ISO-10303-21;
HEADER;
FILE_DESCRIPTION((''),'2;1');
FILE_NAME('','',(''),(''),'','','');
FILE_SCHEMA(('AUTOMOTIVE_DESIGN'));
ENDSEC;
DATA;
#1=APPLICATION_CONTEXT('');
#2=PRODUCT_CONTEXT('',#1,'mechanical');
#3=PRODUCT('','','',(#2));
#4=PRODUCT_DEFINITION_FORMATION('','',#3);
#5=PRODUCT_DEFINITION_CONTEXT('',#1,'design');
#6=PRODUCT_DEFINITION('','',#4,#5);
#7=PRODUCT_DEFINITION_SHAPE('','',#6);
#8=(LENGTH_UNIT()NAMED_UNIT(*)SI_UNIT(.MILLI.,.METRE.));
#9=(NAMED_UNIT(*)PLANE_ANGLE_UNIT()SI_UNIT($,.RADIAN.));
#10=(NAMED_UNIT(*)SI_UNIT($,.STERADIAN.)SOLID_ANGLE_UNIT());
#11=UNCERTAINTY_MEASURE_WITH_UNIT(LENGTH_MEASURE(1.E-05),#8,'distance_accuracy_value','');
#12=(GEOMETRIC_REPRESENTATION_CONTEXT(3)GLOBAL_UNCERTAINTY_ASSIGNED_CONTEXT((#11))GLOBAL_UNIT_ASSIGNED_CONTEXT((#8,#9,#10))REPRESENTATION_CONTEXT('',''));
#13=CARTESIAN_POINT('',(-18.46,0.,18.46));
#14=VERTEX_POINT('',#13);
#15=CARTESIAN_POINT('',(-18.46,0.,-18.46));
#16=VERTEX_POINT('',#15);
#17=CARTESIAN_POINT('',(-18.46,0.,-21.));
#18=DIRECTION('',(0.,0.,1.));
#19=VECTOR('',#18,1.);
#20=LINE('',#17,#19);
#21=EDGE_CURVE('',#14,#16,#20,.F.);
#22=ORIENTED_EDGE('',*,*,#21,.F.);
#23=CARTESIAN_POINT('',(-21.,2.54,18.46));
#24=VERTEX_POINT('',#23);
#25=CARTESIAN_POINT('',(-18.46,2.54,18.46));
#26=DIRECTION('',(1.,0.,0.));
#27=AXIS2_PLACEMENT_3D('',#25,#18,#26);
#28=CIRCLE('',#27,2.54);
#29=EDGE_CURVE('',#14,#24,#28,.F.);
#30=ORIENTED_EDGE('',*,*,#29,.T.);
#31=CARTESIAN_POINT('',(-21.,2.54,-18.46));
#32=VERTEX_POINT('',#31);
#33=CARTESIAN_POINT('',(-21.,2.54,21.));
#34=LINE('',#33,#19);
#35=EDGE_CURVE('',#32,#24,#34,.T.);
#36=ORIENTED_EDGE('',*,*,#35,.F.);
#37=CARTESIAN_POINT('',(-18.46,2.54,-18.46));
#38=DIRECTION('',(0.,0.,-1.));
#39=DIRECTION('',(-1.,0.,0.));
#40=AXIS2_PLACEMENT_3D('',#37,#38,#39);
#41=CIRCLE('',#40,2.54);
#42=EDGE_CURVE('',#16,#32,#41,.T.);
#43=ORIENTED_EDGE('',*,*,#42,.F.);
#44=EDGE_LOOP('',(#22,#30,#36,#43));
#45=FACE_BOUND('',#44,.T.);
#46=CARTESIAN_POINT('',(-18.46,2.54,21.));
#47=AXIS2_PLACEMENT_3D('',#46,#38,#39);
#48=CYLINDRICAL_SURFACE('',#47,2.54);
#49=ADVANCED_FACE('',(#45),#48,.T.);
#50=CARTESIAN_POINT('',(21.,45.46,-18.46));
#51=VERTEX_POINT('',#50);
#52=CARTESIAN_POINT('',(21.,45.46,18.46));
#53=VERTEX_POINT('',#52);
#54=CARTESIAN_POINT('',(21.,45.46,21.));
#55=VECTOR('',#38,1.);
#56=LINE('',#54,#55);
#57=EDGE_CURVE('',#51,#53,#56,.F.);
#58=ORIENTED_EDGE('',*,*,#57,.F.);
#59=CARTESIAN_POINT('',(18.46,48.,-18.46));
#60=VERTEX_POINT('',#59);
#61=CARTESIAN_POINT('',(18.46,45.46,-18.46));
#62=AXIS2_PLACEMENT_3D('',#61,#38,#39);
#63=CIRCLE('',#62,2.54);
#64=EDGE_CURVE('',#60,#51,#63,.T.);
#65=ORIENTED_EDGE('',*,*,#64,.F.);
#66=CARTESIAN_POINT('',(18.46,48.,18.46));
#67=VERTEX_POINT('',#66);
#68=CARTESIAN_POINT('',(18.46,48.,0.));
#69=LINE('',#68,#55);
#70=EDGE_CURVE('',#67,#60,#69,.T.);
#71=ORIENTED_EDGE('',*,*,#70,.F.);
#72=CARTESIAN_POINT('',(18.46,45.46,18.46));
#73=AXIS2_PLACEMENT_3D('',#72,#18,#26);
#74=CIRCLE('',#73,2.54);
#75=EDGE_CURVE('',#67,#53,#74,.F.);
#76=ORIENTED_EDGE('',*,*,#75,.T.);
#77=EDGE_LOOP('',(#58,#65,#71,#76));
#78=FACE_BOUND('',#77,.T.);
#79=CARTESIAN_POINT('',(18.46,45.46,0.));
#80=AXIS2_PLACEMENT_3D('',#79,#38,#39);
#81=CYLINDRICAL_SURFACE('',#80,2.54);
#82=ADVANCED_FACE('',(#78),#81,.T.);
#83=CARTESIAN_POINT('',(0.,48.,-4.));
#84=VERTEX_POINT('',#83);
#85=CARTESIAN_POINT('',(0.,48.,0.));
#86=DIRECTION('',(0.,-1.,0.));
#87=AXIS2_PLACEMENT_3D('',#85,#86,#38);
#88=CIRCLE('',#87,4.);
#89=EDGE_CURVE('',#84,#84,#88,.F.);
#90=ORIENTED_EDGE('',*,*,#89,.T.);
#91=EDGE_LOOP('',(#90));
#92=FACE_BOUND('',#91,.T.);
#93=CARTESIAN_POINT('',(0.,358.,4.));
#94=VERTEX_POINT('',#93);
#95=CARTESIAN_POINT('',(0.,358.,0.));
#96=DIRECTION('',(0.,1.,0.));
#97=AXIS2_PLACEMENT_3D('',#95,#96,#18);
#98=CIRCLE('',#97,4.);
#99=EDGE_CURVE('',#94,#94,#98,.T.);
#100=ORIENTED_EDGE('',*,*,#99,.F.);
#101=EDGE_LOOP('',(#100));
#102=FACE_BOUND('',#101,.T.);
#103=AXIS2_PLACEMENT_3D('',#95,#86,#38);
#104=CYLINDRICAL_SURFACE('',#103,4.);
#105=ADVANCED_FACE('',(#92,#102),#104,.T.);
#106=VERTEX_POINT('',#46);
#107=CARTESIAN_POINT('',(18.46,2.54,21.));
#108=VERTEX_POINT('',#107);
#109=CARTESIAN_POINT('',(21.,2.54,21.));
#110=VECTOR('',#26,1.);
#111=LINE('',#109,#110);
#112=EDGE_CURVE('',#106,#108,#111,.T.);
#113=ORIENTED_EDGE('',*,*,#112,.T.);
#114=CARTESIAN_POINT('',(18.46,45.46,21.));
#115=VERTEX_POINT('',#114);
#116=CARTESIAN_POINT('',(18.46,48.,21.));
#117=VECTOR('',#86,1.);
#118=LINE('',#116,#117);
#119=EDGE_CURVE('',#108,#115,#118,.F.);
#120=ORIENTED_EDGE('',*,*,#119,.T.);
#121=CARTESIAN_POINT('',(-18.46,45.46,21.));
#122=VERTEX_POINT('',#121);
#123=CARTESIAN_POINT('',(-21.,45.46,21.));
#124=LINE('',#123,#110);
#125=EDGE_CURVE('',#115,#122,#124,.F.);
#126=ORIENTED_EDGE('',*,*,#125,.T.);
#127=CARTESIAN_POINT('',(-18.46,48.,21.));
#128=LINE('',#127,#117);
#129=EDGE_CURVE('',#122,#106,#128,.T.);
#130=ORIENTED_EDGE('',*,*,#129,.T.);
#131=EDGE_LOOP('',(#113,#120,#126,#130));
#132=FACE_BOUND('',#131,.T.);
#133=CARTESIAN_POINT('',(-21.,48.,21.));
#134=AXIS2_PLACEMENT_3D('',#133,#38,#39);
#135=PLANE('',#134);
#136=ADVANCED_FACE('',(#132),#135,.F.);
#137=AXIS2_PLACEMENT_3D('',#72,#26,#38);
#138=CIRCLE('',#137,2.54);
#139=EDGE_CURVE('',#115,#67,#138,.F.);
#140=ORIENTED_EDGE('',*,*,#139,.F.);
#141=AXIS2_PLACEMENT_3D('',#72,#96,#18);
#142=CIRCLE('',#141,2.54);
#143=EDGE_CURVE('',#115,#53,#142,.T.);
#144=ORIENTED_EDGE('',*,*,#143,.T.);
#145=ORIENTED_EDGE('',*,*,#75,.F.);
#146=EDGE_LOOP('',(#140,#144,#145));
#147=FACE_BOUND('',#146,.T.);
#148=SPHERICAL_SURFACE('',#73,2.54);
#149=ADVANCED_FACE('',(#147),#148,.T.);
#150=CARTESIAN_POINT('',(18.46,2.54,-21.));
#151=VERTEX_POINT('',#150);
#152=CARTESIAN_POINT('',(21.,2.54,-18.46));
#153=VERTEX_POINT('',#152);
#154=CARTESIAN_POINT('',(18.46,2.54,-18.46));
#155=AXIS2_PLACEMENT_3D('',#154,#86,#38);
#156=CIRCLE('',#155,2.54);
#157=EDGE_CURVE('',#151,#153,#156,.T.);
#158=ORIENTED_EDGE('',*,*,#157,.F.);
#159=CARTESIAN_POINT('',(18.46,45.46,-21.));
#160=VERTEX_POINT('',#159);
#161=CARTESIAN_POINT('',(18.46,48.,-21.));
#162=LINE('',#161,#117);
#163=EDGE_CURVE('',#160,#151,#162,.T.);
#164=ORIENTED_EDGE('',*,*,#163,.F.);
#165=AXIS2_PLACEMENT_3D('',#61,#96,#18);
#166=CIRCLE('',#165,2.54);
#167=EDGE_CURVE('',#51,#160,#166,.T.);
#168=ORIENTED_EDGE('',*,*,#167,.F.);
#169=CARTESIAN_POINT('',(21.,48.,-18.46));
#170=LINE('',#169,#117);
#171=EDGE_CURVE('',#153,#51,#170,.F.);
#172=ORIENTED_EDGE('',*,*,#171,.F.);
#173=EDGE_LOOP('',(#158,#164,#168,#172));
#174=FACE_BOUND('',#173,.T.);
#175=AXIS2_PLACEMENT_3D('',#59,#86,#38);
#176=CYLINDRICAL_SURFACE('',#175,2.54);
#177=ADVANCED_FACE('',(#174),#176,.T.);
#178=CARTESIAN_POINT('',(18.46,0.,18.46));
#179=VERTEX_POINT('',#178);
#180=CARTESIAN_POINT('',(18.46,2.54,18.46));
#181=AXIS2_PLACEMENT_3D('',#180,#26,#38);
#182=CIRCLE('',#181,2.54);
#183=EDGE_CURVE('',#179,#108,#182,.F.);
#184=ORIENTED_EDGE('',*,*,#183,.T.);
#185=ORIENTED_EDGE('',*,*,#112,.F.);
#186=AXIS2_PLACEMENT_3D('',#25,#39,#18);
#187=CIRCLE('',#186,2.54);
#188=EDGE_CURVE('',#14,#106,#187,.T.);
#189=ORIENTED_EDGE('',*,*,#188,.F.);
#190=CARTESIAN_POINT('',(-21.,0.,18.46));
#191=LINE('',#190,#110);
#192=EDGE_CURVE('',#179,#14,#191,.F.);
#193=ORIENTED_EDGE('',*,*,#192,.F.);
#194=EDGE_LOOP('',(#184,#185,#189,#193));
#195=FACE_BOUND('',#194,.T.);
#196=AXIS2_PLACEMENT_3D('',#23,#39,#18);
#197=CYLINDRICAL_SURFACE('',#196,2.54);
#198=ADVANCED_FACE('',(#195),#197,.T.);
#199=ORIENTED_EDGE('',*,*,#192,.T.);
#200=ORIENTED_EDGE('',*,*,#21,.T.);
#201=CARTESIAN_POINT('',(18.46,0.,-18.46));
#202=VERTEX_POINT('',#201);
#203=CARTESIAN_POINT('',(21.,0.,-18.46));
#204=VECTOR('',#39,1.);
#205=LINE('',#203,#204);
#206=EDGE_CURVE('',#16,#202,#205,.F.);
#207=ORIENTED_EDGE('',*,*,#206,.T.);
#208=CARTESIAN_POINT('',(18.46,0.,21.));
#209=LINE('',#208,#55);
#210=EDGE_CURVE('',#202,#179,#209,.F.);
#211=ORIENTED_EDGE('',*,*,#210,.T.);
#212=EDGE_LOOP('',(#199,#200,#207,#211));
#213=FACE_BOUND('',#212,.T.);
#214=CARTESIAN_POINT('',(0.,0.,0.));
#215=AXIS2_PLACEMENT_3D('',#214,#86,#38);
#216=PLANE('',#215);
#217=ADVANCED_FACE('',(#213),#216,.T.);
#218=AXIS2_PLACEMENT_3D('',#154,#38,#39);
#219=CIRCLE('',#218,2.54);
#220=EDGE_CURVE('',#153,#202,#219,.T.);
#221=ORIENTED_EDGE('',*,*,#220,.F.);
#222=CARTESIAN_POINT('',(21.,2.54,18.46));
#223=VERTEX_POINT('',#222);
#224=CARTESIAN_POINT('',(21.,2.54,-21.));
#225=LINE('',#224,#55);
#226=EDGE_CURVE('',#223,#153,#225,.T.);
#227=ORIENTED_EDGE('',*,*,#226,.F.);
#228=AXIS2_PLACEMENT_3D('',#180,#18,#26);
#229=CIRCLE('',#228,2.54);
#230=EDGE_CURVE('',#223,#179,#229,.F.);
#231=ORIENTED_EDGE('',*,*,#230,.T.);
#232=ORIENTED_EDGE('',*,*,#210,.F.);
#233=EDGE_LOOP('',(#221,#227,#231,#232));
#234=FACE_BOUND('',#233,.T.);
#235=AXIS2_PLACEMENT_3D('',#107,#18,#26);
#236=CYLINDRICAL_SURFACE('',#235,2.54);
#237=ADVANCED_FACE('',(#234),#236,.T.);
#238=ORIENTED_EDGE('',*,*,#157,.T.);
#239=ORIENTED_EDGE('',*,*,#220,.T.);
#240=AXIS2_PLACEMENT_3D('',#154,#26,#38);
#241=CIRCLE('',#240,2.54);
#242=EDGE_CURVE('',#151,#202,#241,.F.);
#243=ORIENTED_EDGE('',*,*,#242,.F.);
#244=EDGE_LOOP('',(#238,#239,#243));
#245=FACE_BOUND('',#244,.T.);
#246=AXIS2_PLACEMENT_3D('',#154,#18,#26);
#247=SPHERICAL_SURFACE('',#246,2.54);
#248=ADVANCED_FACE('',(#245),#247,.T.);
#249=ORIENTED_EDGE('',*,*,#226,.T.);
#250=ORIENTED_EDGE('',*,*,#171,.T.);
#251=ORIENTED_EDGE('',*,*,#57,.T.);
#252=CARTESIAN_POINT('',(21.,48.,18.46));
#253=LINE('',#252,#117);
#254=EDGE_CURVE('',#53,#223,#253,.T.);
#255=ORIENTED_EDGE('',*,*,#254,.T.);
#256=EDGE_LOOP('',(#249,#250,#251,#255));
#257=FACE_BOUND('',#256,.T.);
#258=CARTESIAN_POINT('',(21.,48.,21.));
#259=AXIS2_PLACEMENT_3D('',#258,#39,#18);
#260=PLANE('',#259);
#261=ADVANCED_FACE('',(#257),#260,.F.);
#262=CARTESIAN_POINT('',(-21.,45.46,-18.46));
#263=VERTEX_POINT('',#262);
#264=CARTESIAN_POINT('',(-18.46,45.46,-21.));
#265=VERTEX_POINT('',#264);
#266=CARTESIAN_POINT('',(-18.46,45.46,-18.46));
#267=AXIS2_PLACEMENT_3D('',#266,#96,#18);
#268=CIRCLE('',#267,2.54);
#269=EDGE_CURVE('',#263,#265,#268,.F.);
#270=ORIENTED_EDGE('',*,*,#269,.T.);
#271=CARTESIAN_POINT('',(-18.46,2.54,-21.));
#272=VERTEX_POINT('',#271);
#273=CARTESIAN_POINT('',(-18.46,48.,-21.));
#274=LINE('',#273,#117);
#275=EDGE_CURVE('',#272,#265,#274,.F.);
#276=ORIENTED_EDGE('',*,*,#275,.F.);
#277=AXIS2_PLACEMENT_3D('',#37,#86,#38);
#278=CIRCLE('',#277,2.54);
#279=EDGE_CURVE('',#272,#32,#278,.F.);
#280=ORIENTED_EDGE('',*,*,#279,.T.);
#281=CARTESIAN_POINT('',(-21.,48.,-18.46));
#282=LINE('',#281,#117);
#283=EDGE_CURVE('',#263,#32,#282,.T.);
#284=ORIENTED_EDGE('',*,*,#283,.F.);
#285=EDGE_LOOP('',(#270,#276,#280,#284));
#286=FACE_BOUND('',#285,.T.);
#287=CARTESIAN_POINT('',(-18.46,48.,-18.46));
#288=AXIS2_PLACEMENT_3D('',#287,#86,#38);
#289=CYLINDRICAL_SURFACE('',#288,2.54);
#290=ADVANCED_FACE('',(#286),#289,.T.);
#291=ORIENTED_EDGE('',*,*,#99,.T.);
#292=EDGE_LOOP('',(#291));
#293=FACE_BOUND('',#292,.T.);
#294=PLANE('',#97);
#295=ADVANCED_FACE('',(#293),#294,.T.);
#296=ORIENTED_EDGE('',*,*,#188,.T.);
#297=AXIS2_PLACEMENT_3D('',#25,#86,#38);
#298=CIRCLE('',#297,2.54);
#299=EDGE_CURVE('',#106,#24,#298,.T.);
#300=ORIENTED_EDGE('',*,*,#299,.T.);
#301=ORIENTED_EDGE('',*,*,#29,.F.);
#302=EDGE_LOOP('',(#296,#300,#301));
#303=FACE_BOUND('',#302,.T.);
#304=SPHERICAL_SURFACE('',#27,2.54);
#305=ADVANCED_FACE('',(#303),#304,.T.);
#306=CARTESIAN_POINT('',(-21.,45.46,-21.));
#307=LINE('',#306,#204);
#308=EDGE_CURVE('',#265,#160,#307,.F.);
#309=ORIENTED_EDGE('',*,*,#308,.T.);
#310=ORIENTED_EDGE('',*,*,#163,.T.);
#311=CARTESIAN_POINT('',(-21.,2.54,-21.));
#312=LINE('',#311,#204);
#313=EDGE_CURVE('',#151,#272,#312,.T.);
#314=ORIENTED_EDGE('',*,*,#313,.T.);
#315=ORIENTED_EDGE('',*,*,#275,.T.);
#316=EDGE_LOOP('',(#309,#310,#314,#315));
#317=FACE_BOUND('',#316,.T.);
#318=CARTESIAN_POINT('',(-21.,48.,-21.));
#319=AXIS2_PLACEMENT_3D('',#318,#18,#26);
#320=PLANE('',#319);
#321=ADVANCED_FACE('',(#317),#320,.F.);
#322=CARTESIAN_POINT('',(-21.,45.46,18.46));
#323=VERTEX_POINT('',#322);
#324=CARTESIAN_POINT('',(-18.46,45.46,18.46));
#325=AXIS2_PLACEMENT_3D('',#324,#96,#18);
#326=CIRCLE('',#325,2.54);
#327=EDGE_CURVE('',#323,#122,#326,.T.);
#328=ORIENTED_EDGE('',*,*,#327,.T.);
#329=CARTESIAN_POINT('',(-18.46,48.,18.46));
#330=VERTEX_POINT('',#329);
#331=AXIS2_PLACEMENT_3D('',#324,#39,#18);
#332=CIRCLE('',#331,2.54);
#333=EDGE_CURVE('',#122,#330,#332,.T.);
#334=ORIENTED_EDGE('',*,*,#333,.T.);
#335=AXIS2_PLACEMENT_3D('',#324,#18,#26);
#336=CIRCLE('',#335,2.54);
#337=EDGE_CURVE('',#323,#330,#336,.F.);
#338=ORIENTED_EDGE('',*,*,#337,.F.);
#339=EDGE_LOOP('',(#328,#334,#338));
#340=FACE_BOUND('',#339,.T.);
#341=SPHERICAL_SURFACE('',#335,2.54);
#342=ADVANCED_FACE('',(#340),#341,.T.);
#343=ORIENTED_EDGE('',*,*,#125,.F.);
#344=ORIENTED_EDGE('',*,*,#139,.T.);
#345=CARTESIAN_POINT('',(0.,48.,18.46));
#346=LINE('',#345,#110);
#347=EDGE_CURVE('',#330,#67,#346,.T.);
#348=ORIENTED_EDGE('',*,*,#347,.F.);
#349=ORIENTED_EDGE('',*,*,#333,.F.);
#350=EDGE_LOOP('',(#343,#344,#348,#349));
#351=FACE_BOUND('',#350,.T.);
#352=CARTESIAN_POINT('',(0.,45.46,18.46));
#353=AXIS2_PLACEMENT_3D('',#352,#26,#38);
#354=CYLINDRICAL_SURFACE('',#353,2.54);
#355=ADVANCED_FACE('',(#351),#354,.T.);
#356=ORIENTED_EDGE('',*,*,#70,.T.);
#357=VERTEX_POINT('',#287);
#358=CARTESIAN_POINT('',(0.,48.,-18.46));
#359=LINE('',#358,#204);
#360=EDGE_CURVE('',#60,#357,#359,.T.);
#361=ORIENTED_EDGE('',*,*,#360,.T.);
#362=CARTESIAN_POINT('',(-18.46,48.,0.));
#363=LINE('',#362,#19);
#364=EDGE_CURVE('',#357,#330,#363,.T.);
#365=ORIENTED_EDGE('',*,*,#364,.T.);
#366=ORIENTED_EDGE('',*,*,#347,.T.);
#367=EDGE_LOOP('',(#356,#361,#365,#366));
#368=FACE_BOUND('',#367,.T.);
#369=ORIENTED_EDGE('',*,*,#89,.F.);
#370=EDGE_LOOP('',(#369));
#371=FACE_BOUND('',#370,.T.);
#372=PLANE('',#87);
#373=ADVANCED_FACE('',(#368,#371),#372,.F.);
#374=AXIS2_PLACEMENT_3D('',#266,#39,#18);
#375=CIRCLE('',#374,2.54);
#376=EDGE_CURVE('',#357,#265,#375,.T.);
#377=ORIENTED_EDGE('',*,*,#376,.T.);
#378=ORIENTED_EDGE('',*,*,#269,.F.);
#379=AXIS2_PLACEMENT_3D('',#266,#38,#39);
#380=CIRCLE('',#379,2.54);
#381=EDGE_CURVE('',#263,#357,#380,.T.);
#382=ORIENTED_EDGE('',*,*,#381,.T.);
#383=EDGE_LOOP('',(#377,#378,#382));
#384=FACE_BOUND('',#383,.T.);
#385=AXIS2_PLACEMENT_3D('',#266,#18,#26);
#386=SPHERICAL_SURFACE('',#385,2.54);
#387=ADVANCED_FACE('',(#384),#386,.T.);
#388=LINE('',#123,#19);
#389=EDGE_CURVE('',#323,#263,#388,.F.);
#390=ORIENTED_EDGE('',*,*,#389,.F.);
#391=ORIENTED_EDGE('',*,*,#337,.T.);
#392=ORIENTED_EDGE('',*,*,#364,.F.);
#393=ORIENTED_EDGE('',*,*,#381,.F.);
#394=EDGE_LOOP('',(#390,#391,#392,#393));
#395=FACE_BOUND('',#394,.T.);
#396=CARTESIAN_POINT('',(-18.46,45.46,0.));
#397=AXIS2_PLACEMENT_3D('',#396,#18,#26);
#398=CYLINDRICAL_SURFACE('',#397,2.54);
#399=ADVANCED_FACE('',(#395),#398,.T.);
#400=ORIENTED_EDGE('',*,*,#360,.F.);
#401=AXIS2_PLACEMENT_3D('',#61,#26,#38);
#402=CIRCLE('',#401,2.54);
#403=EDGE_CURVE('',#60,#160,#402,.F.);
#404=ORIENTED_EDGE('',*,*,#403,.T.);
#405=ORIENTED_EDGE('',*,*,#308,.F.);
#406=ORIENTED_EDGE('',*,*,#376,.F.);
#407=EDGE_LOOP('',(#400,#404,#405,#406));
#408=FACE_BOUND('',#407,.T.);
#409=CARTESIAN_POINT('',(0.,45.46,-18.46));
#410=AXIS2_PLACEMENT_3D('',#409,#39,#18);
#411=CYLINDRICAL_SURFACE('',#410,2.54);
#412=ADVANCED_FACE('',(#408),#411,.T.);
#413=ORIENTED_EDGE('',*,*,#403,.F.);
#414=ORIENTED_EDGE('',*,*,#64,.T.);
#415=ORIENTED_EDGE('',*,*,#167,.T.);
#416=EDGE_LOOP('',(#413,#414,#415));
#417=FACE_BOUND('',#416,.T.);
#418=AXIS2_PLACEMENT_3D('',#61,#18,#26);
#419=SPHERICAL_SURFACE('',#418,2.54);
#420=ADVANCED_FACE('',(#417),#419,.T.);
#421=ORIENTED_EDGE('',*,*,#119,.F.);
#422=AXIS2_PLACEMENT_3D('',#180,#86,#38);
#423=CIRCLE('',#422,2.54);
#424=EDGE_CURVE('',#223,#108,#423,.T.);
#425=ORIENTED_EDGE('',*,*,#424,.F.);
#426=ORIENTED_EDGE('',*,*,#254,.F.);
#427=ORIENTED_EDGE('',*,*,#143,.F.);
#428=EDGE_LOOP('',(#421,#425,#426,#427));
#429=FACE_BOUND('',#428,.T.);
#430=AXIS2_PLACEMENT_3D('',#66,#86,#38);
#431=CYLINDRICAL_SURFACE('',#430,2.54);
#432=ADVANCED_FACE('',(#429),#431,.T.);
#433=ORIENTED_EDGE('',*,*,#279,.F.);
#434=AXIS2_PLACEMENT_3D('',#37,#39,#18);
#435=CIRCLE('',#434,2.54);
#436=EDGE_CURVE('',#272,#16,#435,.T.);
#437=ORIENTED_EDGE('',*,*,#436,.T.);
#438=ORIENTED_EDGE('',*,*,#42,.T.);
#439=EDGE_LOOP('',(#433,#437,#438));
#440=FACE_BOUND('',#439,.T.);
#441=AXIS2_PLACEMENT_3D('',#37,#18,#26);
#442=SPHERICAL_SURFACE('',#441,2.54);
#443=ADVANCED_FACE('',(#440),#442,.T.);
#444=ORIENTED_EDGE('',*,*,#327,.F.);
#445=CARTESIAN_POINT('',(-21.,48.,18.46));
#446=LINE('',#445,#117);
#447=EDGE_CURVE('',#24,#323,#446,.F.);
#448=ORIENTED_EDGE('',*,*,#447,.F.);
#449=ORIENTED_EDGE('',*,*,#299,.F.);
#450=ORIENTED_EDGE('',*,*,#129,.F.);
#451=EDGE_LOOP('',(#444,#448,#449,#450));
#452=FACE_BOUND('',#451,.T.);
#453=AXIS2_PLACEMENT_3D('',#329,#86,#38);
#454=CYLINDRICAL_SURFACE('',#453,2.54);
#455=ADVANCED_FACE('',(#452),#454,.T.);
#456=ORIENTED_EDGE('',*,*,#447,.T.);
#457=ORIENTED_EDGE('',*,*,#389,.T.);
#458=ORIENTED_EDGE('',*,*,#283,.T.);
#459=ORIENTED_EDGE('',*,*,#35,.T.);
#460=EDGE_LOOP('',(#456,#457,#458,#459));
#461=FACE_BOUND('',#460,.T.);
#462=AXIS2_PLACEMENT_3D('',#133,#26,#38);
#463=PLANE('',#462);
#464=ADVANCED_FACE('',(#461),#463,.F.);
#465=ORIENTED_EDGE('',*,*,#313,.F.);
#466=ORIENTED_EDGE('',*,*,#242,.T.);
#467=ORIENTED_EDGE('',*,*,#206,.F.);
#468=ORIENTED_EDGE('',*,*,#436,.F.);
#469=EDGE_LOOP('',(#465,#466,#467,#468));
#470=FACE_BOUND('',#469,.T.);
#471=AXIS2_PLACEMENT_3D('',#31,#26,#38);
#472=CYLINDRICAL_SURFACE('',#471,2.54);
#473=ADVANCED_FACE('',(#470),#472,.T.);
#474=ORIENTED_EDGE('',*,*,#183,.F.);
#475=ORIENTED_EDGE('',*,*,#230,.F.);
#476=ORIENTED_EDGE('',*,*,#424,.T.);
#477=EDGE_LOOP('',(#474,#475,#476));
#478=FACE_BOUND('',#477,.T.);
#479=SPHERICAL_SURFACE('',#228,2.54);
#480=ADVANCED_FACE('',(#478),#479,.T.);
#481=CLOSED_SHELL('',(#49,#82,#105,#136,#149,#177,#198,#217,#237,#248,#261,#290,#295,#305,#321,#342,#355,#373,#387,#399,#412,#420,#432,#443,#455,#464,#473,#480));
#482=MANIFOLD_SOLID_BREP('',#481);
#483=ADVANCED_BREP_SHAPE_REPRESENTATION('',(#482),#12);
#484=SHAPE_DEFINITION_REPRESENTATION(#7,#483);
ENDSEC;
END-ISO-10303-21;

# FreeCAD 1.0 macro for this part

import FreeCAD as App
import Part
import Sketcher
Q = App.Units.Quantity


def edges_at(feature, points):
    """Names of the edges that pass closest to the given points."""
    edges = feature.Shape.Edges
    near = lambda p: min(range(len(edges)), key=lambda i: edges[i].distToShape(Part.Vertex(*p))[0])
    return sorted({f"Edge{near(p) + 1}" for p in points})


def add_polygon(sketch, points):
    """Adds a closed chain of lines whose ends are joined by coincident constraints."""
    first, n = sketch.GeometryCount, len(points)
    for a, b in zip(points, points[1:] + points[:1]):
        sketch.addGeometry(Part.LineSegment(App.Vector(*a, 0), App.Vector(*b, 0)), False)
    for i in range(n):
        sketch.addConstraint(Sketcher.Constraint("Coincident", first + i, 2, first + (i + 1) % n, 1))

doc = App.newDocument("Part")
params = doc.addObject("Spreadsheet::Sheet", "Params")
for row, (alias, value) in enumerate([
    ("sketch1_width", "42 mm"),
    ("pad1_length", "48 mm"),
    ("sketch2_diameter", "8 mm"),
    ("pad2_length", "310 mm"),
    ("fillet_radius", "2.54 mm"),
], start=1):
    params.set(f"A{row}", alias)
    params.set(f"B{row}", "=" + value)
    params.setAlias(f"B{row}", alias)

body = doc.addObject("PartDesign::Body", "Body")

# Sketch on XZ plane
sketch1 = body.newObject("Sketcher::SketchObject", "Sketch")
sketch1.AttachmentSupport = (doc.getObject("XZ_Plane"), [""])
sketch1.MapMode = "FlatFace"
add_polygon(sketch1, [(-21, -21), (-21, 21), (21, 21), (21, -21)])  # lines 0-3
sketch1.addConstraint(Sketcher.Constraint("Vertical", 0))
sketch1.addConstraint(Sketcher.Constraint("Horizontal", 1))
sketch1.addConstraint(Sketcher.Constraint("Vertical", 2))
sketch1.addConstraint(Sketcher.Constraint("Horizontal", 3))
sketch1.addConstraint(Sketcher.Constraint("Symmetric", 0, 2, 2, 2, -1, 1))
sketch1.addConstraint(Sketcher.Constraint("Equal", 3, 0))
sketch1.addConstraint(Sketcher.Constraint("DistanceX", 1, 1, 1, 2, Q("42 mm")))
sketch1.setExpression("Constraints[10]", "Params.sketch1_width")
pad1 = body.newObject("PartDesign::Pad", "Pad")
pad1.Profile = sketch1
pad1.setExpression("Length", "Params.pad1_length")
pad1.Reversed = True

# Sketch on XZ plane
sketch2 = body.newObject("Sketcher::SketchObject", "Sketch001")
sketch2.AttachmentSupport = (doc.getObject("XZ_Plane"), [""])
sketch2.MapMode = "FlatFace"
sketch2.AttachmentOffset = App.Placement(App.Vector(0, 0, -48), App.Rotation())
sketch2.addGeometry(Part.Circle(App.Vector(0, 0, 0), App.Vector(0, 0, 1), 4), False)
sketch2.addConstraint(Sketcher.Constraint("Coincident", 0, 3, -1, 1))
sketch2.addConstraint(Sketcher.Constraint("Diameter", 0, Q("8 mm")))
sketch2.setExpression("Constraints[1]", "Params.sketch2_diameter")
pad2 = body.newObject("PartDesign::Pad", "Pad001")
pad2.Profile = sketch2
pad2.setExpression("Length", "Params.pad2_length")
pad2.Reversed = True
doc.recompute()

fillet = body.newObject("PartDesign::Fillet", "Fillet")
fillet.Base = (pad2, edges_at(pad2, [
    (-21, 48, 0),
    (0, 48, 21),
    (21, 48, 0),
    (0, 0, 21),
    (-21, 0, 0),
    (0, 0, -21),
    (21, 0, 0),
    (0, 48, -21),
    (21, 24, 21),
    (-21, 24, 21),
    (-21, 24, -21),
    (21, 24, -21),
]))
fillet.setExpression("Radius", "Params.fillet_radius")

doc.recompute()
